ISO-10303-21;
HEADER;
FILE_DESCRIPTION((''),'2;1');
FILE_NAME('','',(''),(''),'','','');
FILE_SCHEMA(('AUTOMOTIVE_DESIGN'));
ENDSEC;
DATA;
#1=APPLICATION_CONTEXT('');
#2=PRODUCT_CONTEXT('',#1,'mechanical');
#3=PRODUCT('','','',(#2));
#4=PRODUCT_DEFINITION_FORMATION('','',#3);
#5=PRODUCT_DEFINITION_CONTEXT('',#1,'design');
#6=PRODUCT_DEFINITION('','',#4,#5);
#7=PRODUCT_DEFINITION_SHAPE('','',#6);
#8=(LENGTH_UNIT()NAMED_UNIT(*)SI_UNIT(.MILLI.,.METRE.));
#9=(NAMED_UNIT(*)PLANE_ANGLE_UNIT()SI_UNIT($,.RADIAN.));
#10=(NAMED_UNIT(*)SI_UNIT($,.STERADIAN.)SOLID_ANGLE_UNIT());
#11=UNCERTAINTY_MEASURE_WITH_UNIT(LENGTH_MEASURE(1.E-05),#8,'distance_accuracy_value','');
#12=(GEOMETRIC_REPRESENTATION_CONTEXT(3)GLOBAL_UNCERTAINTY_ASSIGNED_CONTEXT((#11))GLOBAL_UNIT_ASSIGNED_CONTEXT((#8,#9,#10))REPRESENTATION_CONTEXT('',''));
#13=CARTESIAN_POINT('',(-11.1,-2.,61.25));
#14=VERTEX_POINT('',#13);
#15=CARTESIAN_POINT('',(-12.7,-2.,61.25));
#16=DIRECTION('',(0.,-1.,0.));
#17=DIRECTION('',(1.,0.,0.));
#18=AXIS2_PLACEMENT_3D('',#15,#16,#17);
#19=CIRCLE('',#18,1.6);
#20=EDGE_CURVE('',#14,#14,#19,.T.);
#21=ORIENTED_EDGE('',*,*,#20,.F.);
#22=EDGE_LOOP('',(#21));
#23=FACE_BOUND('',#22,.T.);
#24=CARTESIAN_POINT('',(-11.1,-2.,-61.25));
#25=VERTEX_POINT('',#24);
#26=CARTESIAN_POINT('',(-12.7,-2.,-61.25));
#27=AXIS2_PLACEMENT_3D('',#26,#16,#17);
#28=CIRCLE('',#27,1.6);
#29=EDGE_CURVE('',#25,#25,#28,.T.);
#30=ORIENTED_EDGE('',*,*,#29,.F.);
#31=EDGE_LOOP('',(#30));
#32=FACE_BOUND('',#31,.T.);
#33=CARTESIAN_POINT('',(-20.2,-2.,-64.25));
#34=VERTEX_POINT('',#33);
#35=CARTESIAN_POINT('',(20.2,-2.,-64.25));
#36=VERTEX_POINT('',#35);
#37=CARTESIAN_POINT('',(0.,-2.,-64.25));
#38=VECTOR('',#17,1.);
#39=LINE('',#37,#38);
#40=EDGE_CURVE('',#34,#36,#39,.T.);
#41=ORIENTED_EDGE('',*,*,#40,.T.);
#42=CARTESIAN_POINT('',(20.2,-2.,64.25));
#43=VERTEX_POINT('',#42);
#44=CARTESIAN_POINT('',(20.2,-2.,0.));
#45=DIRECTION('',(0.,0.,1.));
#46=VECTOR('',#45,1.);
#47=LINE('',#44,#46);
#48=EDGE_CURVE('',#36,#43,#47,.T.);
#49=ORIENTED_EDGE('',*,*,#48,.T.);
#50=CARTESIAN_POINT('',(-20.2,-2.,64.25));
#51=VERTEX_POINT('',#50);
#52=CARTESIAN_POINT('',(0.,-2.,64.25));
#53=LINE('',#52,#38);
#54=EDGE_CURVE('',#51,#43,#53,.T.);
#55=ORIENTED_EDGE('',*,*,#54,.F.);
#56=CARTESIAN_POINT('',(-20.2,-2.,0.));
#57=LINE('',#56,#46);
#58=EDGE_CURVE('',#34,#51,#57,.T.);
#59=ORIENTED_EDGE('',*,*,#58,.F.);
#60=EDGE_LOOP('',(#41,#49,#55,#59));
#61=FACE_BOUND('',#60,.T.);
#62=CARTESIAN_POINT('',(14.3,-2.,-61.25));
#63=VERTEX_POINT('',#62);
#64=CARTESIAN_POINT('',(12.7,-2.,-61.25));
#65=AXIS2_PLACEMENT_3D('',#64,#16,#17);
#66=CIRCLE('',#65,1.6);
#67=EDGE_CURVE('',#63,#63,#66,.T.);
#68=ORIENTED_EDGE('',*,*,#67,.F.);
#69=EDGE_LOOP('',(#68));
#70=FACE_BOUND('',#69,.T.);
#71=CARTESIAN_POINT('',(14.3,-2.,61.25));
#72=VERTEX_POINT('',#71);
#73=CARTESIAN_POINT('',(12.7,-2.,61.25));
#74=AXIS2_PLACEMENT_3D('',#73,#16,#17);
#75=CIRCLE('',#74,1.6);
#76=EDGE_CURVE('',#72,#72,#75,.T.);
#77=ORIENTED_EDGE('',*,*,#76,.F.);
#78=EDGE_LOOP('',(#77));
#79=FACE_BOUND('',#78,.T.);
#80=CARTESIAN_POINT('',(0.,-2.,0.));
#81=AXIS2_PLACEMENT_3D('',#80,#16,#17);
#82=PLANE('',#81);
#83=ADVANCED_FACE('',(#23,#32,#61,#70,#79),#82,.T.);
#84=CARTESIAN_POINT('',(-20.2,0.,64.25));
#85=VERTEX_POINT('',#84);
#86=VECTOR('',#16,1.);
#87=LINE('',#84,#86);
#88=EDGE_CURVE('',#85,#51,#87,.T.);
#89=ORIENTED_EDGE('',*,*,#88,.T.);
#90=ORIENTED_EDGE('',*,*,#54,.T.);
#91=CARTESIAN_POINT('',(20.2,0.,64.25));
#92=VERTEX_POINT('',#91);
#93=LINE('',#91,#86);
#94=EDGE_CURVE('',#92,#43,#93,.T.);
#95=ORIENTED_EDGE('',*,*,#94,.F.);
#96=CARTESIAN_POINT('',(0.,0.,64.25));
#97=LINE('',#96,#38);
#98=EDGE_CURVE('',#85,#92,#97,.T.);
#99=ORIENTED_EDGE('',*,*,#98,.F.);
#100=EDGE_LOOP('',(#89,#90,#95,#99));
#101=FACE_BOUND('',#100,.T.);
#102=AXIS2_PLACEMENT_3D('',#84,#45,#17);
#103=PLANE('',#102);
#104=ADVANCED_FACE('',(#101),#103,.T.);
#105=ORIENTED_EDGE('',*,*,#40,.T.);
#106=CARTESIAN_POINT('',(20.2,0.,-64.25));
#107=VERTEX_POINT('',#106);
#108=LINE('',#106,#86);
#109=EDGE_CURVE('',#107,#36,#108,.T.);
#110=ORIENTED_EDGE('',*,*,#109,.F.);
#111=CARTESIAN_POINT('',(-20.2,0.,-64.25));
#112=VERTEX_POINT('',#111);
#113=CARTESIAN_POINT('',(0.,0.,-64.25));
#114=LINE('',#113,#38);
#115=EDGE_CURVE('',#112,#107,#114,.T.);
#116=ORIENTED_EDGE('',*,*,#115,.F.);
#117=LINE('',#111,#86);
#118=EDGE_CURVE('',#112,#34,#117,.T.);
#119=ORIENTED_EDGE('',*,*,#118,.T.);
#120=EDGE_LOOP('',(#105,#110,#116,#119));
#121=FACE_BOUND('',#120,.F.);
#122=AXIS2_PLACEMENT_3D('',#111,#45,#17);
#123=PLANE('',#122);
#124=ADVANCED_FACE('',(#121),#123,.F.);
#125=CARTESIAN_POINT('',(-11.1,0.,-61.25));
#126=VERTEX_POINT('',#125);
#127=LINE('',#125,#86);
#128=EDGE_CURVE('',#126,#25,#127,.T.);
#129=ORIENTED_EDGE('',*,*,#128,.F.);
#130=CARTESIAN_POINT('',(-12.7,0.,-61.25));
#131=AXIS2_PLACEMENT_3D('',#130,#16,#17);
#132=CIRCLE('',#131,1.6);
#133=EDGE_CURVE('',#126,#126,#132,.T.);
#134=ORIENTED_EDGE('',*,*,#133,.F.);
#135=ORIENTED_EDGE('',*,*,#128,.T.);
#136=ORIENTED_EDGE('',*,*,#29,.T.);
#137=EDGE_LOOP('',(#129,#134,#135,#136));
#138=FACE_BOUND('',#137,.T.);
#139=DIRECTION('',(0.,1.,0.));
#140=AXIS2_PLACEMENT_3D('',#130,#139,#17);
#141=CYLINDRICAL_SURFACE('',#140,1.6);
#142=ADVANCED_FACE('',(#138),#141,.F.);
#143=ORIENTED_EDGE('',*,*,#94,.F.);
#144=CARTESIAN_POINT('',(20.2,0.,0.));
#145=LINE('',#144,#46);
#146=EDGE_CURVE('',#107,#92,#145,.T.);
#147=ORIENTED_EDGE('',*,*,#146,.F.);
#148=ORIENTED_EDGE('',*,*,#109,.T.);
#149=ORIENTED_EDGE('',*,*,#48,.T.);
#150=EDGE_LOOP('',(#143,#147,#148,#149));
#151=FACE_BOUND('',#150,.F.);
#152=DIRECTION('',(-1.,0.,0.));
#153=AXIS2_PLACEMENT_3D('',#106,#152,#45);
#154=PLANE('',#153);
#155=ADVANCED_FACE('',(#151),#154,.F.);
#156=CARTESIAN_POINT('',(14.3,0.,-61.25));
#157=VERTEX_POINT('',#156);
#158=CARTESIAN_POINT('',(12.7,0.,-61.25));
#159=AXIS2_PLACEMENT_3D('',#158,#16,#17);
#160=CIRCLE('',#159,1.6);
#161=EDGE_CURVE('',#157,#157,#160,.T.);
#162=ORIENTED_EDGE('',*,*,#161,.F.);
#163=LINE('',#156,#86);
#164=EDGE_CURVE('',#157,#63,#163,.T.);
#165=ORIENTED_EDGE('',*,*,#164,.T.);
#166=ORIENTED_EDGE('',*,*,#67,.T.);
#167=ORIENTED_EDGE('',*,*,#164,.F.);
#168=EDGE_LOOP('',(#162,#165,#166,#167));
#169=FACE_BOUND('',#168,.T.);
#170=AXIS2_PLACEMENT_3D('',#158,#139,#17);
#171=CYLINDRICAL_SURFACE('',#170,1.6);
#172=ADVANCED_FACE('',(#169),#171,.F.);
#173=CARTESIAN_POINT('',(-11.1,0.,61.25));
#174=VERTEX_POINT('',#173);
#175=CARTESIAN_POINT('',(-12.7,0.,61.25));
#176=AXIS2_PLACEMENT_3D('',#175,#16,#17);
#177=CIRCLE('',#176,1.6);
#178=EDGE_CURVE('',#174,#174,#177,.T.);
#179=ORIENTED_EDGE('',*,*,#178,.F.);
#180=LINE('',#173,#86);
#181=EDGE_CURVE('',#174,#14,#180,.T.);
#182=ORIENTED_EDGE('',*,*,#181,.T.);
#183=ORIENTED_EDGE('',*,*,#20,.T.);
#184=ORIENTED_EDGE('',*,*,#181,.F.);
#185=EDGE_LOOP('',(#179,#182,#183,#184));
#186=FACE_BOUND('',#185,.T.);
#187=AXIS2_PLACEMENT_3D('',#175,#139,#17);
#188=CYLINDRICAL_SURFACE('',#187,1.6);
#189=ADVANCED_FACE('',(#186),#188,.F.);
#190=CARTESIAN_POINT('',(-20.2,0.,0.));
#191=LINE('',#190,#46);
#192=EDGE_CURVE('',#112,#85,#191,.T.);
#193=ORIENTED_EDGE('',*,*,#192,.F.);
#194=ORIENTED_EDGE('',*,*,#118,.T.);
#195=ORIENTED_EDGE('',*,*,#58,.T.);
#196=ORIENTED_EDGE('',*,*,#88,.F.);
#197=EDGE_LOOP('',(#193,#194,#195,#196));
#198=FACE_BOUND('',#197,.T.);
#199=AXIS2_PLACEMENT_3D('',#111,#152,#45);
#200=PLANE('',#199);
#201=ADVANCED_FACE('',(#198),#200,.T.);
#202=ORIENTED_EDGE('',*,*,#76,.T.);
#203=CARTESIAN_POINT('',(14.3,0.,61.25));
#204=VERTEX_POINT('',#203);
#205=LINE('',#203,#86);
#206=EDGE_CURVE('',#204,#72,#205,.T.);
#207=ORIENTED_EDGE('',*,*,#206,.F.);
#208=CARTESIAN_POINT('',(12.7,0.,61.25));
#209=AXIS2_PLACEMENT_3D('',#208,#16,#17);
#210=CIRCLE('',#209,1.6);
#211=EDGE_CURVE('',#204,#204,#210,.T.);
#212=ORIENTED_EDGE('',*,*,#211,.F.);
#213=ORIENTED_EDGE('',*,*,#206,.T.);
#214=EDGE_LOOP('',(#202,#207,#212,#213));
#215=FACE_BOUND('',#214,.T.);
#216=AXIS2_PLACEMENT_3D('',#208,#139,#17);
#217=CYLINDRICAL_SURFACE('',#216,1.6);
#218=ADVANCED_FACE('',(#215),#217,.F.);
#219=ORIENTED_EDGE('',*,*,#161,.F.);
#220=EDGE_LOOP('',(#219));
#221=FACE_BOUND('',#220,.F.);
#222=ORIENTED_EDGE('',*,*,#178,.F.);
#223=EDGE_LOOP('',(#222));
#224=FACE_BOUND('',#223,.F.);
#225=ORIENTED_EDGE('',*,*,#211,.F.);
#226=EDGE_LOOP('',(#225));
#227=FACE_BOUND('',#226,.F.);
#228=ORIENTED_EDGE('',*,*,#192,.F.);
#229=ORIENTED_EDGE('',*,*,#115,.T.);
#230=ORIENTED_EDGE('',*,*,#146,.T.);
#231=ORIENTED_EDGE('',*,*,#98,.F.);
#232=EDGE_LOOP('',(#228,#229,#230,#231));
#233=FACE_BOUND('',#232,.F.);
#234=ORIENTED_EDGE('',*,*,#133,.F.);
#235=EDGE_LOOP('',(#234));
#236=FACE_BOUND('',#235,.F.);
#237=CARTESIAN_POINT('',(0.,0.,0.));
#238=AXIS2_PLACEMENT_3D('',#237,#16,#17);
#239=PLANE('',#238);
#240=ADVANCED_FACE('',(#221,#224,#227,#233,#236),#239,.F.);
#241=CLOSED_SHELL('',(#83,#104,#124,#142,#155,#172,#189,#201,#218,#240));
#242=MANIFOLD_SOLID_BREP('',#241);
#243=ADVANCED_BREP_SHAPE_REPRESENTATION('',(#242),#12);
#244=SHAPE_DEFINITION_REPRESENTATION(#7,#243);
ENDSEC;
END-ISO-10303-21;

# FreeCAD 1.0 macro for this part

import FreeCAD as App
import Part
import Sketcher

V = App.Vector
Q = App.Units.Quantity


def add_polygon(sketch, points):
    """Adds a closed chain of lines whose ends are joined by coincident constraints."""
    first, n = sketch.GeometryCount, len(points)
    for a, b in zip(points, points[1:] + points[:1]):
        sketch.addGeometry(Part.LineSegment(App.Vector(*a, 0), App.Vector(*b, 0)), False)
    for i in range(n):
        sketch.addConstraint(Sketcher.Constraint("Coincident", first + i, 2, first + (i + 1) % n, 1))

doc = App.newDocument("Part")
body = doc.addObject("PartDesign::Body", "Body")

sketch1 = body.newObject("Sketcher::SketchObject", "Sketch")
sketch1.AttachmentSupport = (doc.getObject("XZ_Plane"), [""])
sketch1.MapMode = "FlatFace"
add_polygon(sketch1, [(-20.2, 64.2), (-20.2, -64.2), (20.2, -64.2), (20.2, 64.2)])
sketch1.addGeometry(Part.Circle(V(-12.7, -61.2, 0), V(0, 0, 1), 1.6), False)
sketch1.addGeometry(Part.Circle(V(12.7, -61.2, 0), V(0, 0, 1), 1.6), False)
sketch1.addGeometry(Part.Circle(V(-12.7, 61.2, 0), V(0, 0, 1), 1.6), False)
sketch1.addGeometry(Part.Circle(V(12.7, 61.2, 0), V(0, 0, 1), 1.6), False)
sketch1.addConstraint(Sketcher.Constraint("Vertical", 0))
sketch1.addConstraint(Sketcher.Constraint("Horizontal", 1))
sketch1.addConstraint(Sketcher.Constraint("Vertical", 2))
sketch1.addConstraint(Sketcher.Constraint("Horizontal", 3))
sketch1.addConstraint(Sketcher.Constraint("Equal", 4, 5))
sketch1.addConstraint(Sketcher.Constraint("Equal", 5, 6))
sketch1.addConstraint(Sketcher.Constraint("Equal", 6, 7))
sketch1.addConstraint(Sketcher.Constraint("Symmetric", 5, 3, 6, 3, -1, 1))
sketch1.addConstraint(Sketcher.Constraint("Symmetric", 4, 3, 7, 3, -1, 1))
sketch1.addConstraint(Sketcher.Constraint("Symmetric", 0, 2, 2, 2, -1, 1))
sketch1.addConstraint(Sketcher.Constraint("Symmetric", 4, 3, 5, 3, -2))
sketch1.addConstraint(Sketcher.Constraint("Diameter", 4, Q("3.2 mm")))
sketch1.addConstraint(Sketcher.Constraint("DistanceX", 1, 1, 1, 2, Q("40.4 mm")))
sketch1.addConstraint(Sketcher.Constraint("DistanceY", 0, 2, 0, 1, Q("128.5 mm")))
sketch1.addConstraint(Sketcher.Constraint("DistanceY", 0, 2, 4, 3, Q("3 mm")))
sketch1.addConstraint(Sketcher.Constraint("DistanceX", 4, 3, -1, 1, Q("12.7 mm")))
pad1 = body.newObject("PartDesign::Pad", "Pad")
pad1.Profile = sketch1
pad1.Length = 2

doc.recompute()
